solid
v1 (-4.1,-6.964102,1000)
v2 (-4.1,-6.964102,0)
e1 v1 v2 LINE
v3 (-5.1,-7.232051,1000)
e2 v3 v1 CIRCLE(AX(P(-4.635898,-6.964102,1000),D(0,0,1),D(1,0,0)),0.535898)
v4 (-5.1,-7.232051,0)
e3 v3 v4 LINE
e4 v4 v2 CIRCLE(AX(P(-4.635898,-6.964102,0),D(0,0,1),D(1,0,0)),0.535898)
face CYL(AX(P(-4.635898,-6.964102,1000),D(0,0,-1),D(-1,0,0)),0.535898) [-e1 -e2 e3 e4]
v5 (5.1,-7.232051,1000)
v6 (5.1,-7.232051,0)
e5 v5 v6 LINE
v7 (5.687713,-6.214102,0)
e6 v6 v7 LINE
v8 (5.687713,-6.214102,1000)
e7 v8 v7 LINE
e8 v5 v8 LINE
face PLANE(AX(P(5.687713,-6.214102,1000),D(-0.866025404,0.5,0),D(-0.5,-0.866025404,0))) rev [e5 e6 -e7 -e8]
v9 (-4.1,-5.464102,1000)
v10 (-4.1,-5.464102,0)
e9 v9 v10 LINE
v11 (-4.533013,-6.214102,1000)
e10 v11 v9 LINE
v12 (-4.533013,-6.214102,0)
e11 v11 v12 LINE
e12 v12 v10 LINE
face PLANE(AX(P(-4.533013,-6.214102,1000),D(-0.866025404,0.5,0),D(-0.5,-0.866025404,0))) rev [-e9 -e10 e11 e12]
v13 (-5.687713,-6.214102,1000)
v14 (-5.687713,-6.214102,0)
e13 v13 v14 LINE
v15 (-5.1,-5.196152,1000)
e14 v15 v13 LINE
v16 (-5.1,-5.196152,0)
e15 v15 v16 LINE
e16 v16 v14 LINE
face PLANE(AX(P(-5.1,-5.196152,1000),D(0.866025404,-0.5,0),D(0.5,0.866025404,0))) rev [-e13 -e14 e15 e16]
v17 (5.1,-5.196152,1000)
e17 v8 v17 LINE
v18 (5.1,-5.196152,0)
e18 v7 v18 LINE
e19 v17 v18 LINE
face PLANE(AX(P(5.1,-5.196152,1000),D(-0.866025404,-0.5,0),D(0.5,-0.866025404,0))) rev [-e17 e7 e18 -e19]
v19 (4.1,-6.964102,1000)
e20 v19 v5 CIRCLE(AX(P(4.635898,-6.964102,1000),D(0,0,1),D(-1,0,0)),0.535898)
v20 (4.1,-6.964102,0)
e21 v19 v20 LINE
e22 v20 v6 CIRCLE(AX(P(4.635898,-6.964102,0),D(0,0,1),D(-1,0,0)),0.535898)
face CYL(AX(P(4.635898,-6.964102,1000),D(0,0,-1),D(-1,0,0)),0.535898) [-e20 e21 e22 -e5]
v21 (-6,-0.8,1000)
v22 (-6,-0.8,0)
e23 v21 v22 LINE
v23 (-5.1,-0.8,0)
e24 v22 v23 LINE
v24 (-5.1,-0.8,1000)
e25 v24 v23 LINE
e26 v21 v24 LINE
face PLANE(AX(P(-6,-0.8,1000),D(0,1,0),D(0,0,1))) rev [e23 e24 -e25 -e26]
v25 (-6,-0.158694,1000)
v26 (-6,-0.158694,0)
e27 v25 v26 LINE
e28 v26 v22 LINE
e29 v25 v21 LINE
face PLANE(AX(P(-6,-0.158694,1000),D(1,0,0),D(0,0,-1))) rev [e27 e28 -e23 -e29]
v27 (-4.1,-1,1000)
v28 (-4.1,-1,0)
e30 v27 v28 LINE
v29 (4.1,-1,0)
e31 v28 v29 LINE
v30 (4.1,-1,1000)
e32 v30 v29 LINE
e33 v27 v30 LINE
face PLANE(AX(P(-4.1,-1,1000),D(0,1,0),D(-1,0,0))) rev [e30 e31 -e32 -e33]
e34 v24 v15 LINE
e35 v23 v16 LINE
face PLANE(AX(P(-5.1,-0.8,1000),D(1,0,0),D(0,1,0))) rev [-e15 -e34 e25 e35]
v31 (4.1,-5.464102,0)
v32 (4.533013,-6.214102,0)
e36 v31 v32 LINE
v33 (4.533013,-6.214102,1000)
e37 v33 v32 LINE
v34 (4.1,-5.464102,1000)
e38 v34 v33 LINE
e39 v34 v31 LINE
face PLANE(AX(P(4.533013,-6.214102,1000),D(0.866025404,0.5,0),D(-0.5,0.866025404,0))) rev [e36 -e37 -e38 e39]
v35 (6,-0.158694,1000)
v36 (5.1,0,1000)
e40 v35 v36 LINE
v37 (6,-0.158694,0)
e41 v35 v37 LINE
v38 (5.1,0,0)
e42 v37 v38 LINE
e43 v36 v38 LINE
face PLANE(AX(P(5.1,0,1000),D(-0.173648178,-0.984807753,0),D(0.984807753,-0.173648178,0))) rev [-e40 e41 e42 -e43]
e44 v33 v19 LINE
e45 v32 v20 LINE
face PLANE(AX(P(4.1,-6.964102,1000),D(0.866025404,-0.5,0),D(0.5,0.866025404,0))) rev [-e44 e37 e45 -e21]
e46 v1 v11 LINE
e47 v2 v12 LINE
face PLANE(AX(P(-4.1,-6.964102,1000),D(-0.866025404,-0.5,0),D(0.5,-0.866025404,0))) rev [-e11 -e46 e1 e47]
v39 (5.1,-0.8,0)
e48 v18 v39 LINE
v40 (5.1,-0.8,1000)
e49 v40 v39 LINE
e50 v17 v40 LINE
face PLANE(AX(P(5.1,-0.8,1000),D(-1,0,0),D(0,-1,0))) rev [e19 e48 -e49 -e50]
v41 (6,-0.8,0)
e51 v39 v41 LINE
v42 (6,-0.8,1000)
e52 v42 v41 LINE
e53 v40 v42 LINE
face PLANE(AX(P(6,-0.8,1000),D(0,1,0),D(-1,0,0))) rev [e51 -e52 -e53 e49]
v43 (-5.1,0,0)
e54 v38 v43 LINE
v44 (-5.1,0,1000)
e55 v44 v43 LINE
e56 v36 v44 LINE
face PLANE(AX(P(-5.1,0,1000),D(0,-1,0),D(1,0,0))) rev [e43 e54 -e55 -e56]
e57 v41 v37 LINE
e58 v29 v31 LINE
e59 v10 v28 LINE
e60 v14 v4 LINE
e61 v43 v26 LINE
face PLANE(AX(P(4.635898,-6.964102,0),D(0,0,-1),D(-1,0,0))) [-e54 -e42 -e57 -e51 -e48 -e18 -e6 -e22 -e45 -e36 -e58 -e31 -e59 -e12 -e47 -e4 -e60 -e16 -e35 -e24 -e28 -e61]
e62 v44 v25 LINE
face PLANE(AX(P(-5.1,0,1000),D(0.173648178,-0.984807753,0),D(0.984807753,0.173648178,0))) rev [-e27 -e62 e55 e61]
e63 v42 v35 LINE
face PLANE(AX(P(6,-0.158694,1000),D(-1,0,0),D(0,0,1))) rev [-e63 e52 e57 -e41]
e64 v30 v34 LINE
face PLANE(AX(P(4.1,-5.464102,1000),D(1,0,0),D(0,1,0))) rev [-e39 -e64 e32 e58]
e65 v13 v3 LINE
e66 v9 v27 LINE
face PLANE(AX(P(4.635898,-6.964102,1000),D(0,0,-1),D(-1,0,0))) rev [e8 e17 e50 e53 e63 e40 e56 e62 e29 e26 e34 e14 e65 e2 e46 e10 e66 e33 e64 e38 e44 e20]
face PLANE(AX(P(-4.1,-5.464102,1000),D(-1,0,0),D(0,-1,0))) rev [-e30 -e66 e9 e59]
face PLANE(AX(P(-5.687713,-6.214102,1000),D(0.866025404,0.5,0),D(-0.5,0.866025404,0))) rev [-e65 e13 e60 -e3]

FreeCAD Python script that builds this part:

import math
import FreeCAD as App
import Part
import Sketcher
Q = App.Units.Quantity

doc = App.newDocument("Part")
body = doc.addObject("PartDesign::Body", "Body")

# Sketch on XY plane
sketch1 = body.newObject("Sketcher::SketchObject", "Sketch")
sketch1.AttachmentSupport = (doc.getObject("XY_Plane"), [""])
sketch1.MapMode = "FlatFace"
sketch1.addGeometry(Part.LineSegment(App.Vector(-5.1, 0, 0), App.Vector(-6, -0.2, 0)), False)
sketch1.addGeometry(Part.LineSegment(App.Vector(-6, -0.2, 0), App.Vector(-6, -0.8, 0)), False)
sketch1.addGeometry(Part.LineSegment(App.Vector(-6, -0.8, 0), App.Vector(-5.1, -0.8, 0)), False)
sketch1.addGeometry(Part.LineSegment(App.Vector(-5.1, -0.8, 0), App.Vector(-5.1, -5.2, 0)), False)
sketch1.addGeometry(Part.LineSegment(App.Vector(-5.1, -5.2, 0), App.Vector(-5.7, -6.2, 0)), False)
sketch1.addGeometry(Part.LineSegment(App.Vector(-5.7, -6.2, 0), App.Vector(-5.1, -7.2, 0)), False)
sketch1.addGeometry(Part.ArcOfCircle(Part.Circle(App.Vector(-4.6, -7, 0), App.Vector(0, 0, 1), 0.5), math.radians(-150), math.radians(0)), False)
sketch1.addGeometry(Part.LineSegment(App.Vector(-4.1, -7, 0), App.Vector(-4.5, -6.2, 0)), False)
sketch1.addGeometry(Part.LineSegment(App.Vector(-4.5, -6.2, 0), App.Vector(-4.1, -5.5, 0)), False)
sketch1.addGeometry(Part.LineSegment(App.Vector(-4.1, -5.5, 0), App.Vector(-4.1, -1, 0)), False)
sketch1.addGeometry(Part.LineSegment(App.Vector(-4.1, -1, 0), App.Vector(4.1, -1, 0)), False)
sketch1.addGeometry(Part.LineSegment(App.Vector(4.1, -1, 0), App.Vector(4.1, -5.5, 0)), False)
sketch1.addGeometry(Part.LineSegment(App.Vector(4.1, -5.5, 0), App.Vector(4.5, -6.2, 0)), False)
sketch1.addGeometry(Part.LineSegment(App.Vector(4.5, -6.2, 0), App.Vector(4.1, -7, 0)), False)
sketch1.addGeometry(Part.ArcOfCircle(Part.Circle(App.Vector(4.6, -7, 0), App.Vector(0, 0, 1), 0.5), math.radians(-180), math.radians(-30)), False)
sketch1.addGeometry(Part.LineSegment(App.Vector(5.1, -7.2, 0), App.Vector(5.7, -6.2, 0)), False)
sketch1.addGeometry(Part.LineSegment(App.Vector(5.7, -6.2, 0), App.Vector(5.1, -5.2, 0)), False)
sketch1.addGeometry(Part.LineSegment(App.Vector(5.1, -5.2, 0), App.Vector(5.1, -0.8, 0)), False)
sketch1.addGeometry(Part.LineSegment(App.Vector(5.1, -0.8, 0), App.Vector(6, -0.8, 0)), False)
sketch1.addGeometry(Part.LineSegment(App.Vector(6, -0.8, 0), App.Vector(6, -0.2, 0)), False)
sketch1.addGeometry(Part.LineSegment(App.Vector(6, -0.2, 0), App.Vector(5.1, 0, 0)), False)
sketch1.addGeometry(Part.LineSegment(App.Vector(5.1, 0, 0), App.Vector(-5.1, 0, 0)), False)
sketch1.addConstraint(Sketcher.Constraint("Coincident", 0, 2, 1, 1))
sketch1.addConstraint(Sketcher.Constraint("Coincident", 1, 2, 2, 1))
sketch1.addConstraint(Sketcher.Constraint("Coincident", 2, 2, 3, 1))
sketch1.addConstraint(Sketcher.Constraint("Coincident", 3, 2, 4, 1))
sketch1.addConstraint(Sketcher.Constraint("Coincident", 4, 2, 5, 1))
sketch1.addConstraint(Sketcher.Constraint("Tangent", 5, 2, 6, 1))
sketch1.addConstraint(Sketcher.Constraint("Coincident", 6, 2, 7, 1))
sketch1.addConstraint(Sketcher.Constraint("Coincident", 7, 2, 8, 1))
sketch1.addConstraint(Sketcher.Constraint("Coincident", 8, 2, 9, 1))
sketch1.addConstraint(Sketcher.Constraint("Coincident", 9, 2, 10, 1))
sketch1.addConstraint(Sketcher.Constraint("Coincident", 10, 2, 11, 1))
sketch1.addConstraint(Sketcher.Constraint("Coincident", 11, 2, 12, 1))
sketch1.addConstraint(Sketcher.Constraint("Coincident", 12, 2, 13, 1))
sketch1.addConstraint(Sketcher.Constraint("Coincident", 13, 2, 14, 1))
sketch1.addConstraint(Sketcher.Constraint("Tangent", 14, 2, 15, 1))
sketch1.addConstraint(Sketcher.Constraint("Coincident", 15, 2, 16, 1))
sketch1.addConstraint(Sketcher.Constraint("Coincident", 16, 2, 17, 1))
sketch1.addConstraint(Sketcher.Constraint("Coincident", 17, 2, 18, 1))
sketch1.addConstraint(Sketcher.Constraint("Coincident", 18, 2, 19, 1))
sketch1.addConstraint(Sketcher.Constraint("Coincident", 19, 2, 20, 1))
sketch1.addConstraint(Sketcher.Constraint("Coincident", 20, 2, 21, 1))
sketch1.addConstraint(Sketcher.Constraint("Coincident", 21, 2, 0, 1))
sketch1.addConstraint(Sketcher.Constraint("Vertical", 1))
sketch1.addConstraint(Sketcher.Constraint("Horizontal", 2))
sketch1.addConstraint(Sketcher.Constraint("Vertical", 3))
sketch1.addConstraint(Sketcher.Constraint("Vertical", 9))
sketch1.addConstraint(Sketcher.Constraint("Horizontal", 10))
sketch1.addConstraint(Sketcher.Constraint("Vertical", 11))
sketch1.addConstraint(Sketcher.Constraint("Vertical", 17))
sketch1.addConstraint(Sketcher.Constraint("Horizontal", 18))
sketch1.addConstraint(Sketcher.Constraint("Vertical", 19))
sketch1.addConstraint(Sketcher.Constraint("Horizontal", 21))
sketch1.addConstraint(Sketcher.Constraint("Equal", 6, 14))
sketch1.addConstraint(Sketcher.Constraint("Symmetric", 20, 2, 21, 2, -1, 1))
sketch1.addConstraint(Sketcher.Constraint("Symmetric", 6, 3, 14, 3, -2))
sketch1.addConstraint(Sketcher.Constraint("Symmetric", 8, 2, 11, 2, -2))
sketch1.addConstraint(Sketcher.Constraint("Symmetric", 7, 2, 12, 2, -2))
sketch1.addConstraint(Sketcher.Constraint("Symmetric", 4, 2, 15, 2, -2))
sketch1.addConstraint(Sketcher.Constraint("Symmetric", 3, 2, 16, 2, -2))
sketch1.addConstraint(Sketcher.Constraint("Symmetric", 1, 2, 18, 2, -2))
sketch1.addConstraint(Sketcher.Constraint("Parallel", 5, 7))
sketch1.addConstraint(Sketcher.Constraint("Parallel", 4, 8))
sketch1.addConstraint(Sketcher.Constraint("Parallel", 7, 12))
sketch1.addConstraint(Sketcher.Constraint("Parallel", 8, 13))
sketch1.addConstraint(Sketcher.Constraint("Horizontal", 14, 3, 6, 2))
sketch1.addConstraint(Sketcher.Constraint("Horizontal", 4, 2, 7, 2))
sketch1.addConstraint(Sketcher.Constraint("Horizontal", 0, 2, 19, 2))
sketch1.addConstraint(Sketcher.Constraint("Vertical", 3, 2, 5, 2))
sketch1.addConstraint(Sketcher.Constraint("Vertical", 6, 2, 8, 2))
sketch1.addConstraint(Sketcher.Constraint("Vertical", 17, 2, 20, 2))
sketch1.addConstraint(Sketcher.Constraint("Angle", 0, Q("-170 deg")))
sketch1.addConstraint(Sketcher.Constraint("Angle", 4, Q("-120 deg")))
sketch1.addConstraint(Sketcher.Constraint("DistanceX", 2, 1, 2, 2, 0.9))
sketch1.addConstraint(Sketcher.Constraint("DistanceX", 10, 1, 10, 2, 8.2))
sketch1.addConstraint(Sketcher.Constraint("DistanceX", 21, 2, 21, 1, 10.2))
sketch1.addConstraint(Sketcher.Constraint("DistanceY", 9, 2, -1, 1, 1.0))
sketch1.addConstraint(Sketcher.Constraint("DistanceY", 1, 2, -1, 1, 0.8))
sketch1.addConstraint(Sketcher.Constraint("DistanceY", 6, 2, 8, 2, 1.5))
sketch1.addConstraint(Sketcher.Constraint("DistanceY", 9, 1, 9, 2, 4.464102))
pad1 = body.newObject("PartDesign::Pad", "Pad")
pad1.Profile = sketch1
pad1.Length = 1000

doc.recompute()
